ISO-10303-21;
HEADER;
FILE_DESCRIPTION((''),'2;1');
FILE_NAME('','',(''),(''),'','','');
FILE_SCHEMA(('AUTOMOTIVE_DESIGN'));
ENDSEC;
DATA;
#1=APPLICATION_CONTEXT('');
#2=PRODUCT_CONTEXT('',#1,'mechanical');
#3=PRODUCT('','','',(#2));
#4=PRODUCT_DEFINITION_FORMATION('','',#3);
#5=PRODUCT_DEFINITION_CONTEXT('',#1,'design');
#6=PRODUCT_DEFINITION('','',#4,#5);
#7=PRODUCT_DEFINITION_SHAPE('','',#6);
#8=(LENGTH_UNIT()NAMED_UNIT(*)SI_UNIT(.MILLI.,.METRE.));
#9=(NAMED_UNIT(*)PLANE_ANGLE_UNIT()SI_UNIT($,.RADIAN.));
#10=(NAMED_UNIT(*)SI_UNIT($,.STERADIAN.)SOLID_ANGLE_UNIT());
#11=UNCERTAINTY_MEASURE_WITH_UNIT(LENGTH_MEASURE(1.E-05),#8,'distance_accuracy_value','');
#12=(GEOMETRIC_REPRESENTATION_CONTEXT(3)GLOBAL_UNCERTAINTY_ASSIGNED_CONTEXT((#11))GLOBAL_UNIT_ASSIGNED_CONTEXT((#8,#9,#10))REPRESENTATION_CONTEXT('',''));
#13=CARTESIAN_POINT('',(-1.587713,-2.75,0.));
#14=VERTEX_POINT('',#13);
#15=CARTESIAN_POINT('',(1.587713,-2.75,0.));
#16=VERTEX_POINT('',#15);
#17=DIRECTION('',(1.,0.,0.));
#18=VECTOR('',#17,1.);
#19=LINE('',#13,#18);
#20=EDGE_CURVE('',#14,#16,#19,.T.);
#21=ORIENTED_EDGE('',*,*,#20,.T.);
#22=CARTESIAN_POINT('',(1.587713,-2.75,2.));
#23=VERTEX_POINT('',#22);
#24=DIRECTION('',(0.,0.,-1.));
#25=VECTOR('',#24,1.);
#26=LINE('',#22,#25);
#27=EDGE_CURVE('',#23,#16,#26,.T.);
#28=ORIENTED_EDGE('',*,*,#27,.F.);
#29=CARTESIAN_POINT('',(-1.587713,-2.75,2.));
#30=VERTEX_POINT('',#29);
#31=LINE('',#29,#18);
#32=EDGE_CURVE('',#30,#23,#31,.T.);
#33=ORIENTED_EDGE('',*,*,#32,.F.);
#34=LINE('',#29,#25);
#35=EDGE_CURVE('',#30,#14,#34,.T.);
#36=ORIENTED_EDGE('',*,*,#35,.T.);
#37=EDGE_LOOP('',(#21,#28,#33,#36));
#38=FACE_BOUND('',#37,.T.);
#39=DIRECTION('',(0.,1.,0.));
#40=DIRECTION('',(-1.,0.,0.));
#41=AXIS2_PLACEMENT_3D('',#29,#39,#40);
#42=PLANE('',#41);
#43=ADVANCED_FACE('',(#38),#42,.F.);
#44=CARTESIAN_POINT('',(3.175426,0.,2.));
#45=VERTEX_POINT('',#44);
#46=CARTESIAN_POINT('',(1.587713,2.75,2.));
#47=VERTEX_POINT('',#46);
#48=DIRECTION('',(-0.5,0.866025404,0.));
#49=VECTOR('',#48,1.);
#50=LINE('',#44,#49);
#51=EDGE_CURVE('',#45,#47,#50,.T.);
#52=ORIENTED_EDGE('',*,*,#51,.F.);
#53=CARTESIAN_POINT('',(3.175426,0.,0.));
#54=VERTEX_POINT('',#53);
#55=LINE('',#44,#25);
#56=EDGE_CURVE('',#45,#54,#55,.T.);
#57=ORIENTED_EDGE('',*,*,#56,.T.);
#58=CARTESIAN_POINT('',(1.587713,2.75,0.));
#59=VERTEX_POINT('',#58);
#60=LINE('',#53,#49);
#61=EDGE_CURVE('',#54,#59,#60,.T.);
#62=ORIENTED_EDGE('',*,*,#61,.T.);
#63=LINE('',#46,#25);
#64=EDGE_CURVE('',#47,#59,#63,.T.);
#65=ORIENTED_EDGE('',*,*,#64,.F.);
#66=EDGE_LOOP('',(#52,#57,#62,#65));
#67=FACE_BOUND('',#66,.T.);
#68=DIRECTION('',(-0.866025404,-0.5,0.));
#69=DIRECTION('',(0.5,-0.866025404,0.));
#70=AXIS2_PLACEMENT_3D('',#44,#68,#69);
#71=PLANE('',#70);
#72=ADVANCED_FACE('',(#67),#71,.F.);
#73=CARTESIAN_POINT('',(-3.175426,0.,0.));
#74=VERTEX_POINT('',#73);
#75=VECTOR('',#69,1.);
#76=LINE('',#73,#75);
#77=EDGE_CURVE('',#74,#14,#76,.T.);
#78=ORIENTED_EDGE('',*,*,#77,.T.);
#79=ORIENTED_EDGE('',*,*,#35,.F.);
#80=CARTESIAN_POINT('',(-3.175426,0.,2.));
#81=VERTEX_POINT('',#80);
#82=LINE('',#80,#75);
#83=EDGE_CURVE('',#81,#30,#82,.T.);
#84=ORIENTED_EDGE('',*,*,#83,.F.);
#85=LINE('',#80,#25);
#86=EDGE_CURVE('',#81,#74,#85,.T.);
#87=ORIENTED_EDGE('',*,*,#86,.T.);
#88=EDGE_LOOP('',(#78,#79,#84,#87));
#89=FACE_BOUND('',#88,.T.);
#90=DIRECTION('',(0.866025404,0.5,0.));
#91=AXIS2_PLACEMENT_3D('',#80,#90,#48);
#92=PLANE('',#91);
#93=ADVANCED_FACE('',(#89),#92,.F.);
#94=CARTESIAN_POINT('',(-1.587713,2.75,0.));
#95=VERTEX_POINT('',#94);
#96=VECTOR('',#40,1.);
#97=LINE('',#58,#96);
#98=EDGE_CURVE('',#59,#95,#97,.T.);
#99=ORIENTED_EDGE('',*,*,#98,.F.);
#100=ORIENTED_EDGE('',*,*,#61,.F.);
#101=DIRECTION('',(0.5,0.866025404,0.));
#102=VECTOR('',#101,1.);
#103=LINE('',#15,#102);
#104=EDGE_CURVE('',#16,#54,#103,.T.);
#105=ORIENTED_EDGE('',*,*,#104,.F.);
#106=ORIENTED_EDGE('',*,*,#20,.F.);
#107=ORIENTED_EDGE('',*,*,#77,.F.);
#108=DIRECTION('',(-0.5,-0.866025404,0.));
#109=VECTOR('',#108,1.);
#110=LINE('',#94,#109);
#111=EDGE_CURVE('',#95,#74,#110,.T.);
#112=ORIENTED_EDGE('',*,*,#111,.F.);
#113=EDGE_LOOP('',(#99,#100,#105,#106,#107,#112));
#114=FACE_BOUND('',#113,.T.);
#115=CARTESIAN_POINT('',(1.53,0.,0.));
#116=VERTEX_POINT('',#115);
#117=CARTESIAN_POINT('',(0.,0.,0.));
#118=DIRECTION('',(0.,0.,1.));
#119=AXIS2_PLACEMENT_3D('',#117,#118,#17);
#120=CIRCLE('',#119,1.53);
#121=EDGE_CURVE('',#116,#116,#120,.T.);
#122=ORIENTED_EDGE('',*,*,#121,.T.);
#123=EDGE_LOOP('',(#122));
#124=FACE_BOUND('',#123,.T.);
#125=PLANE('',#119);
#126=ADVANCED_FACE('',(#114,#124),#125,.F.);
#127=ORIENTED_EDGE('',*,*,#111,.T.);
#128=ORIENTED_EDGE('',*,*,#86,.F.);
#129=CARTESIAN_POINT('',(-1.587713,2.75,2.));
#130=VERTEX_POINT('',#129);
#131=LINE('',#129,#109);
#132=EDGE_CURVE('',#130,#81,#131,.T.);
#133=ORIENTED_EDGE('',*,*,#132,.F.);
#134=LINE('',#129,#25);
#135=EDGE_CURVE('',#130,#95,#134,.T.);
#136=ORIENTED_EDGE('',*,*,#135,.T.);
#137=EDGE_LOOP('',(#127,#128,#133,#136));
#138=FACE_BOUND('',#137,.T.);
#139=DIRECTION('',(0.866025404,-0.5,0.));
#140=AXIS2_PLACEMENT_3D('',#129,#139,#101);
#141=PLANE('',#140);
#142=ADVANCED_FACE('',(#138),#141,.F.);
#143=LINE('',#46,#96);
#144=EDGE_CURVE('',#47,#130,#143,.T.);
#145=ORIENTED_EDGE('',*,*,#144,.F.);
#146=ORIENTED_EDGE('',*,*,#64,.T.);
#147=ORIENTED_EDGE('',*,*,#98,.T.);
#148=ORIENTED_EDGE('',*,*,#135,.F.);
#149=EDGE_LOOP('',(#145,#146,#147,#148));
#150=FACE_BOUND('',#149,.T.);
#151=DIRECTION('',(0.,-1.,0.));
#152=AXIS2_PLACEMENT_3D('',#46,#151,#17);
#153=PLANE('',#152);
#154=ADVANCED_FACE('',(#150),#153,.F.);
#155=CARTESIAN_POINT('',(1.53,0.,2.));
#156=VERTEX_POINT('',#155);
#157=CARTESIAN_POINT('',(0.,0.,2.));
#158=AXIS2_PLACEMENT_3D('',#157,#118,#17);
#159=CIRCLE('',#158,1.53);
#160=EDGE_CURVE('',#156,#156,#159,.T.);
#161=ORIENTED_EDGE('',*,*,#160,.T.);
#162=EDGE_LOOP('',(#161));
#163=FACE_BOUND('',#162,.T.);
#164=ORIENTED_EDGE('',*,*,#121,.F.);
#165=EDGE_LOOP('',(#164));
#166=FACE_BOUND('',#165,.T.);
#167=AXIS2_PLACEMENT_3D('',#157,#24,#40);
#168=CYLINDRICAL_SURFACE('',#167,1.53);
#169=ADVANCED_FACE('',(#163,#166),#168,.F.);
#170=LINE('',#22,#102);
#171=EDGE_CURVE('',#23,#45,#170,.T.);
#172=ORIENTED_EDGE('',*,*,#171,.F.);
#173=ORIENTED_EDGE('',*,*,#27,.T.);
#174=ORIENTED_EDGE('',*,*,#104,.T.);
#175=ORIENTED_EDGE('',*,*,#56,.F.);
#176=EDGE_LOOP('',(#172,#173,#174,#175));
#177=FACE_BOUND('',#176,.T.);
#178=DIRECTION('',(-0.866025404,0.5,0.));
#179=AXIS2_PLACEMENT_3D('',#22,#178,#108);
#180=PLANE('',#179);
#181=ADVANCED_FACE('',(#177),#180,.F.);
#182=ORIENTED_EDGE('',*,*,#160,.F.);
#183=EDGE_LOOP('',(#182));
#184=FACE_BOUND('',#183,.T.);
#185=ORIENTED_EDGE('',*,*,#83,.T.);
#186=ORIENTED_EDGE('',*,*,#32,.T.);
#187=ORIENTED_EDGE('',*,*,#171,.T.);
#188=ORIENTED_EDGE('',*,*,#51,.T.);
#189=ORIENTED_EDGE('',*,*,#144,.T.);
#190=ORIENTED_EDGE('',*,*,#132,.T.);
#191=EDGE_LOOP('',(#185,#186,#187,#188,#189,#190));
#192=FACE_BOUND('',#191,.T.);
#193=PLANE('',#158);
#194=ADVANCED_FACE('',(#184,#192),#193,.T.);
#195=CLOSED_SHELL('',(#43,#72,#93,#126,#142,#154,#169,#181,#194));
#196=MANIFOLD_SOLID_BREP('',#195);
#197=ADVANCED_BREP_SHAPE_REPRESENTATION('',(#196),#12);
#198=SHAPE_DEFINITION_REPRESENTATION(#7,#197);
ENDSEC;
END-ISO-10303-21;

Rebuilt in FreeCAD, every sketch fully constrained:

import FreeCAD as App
import Part
import Sketcher

V = App.Vector
Q = App.Units.Quantity


def add_polygon(sketch, points):
    """Adds a closed chain of lines whose ends are joined by coincident constraints."""
    first, n = sketch.GeometryCount, len(points)
    for a, b in zip(points, points[1:] + points[:1]):
        sketch.addGeometry(Part.LineSegment(App.Vector(*a, 0), App.Vector(*b, 0)), False)
    for i in range(n):
        sketch.addConstraint(Sketcher.Constraint("Coincident", first + i, 2, first + (i + 1) % n, 1))

doc = App.newDocument("Part")
params = doc.addObject("Spreadsheet::Sheet", "Params")
for row, (alias, value) in enumerate([
    ("sketch1_diameter", "3.06 mm"),
    ("pad1_length", "2 mm"),
], start=1):
    params.set(f"A{row}", alias)
    params.set(f"B{row}", "=" + value)
    params.setAlias(f"B{row}", alias)

body = doc.addObject("PartDesign::Body", "Body")

sketch1 = body.newObject("Sketcher::SketchObject", "Sketch")
sketch1.AttachmentSupport = (doc.getObject("XY_Plane"), [""])
sketch1.MapMode = "FlatFace"
add_polygon(sketch1, [(3.2, 0), (1.6, 2.8), (-1.6, 2.8), (-3.2, 0), (-1.6, -2.8), (1.6, -2.8)])
sketch1.addGeometry(Part.Circle(V(0, 0, 0), V(0, 0, 1), 1.5), False)
sketch1.addConstraint([
    Sketcher.Constraint("Horizontal", 1),
    Sketcher.Constraint("Horizontal", 4),
    Sketcher.Constraint("Coincident", 6, 3, -1, 1),
    Sketcher.Constraint("Symmetric", 0, 2, 3, 2, -1, 1),
    Sketcher.Constraint("Symmetric", 2, 2, 5, 2, -1, 1),
    Sketcher.Constraint("PointOnObject", 2, 2, -1),
    Sketcher.Constraint("Parallel", 2, 5),
    Sketcher.Constraint("Vertical", 1, 2, 3, 2),
    Sketcher.Constraint("Diameter", 6, 3.06),
    Sketcher.Constraint("Angle", 0, Q("120 deg")),
    Sketcher.Constraint("DistanceY", 3, 2, 1, 2, 5.5),
    Sketcher.Constraint("DistanceX", 1, 2, 1, 1, 3.175426),
])
sketch1.setExpression("Constraints[14]", "Params.sketch1_diameter")
pad1 = body.newObject("PartDesign::Pad", "Pad")
pad1.Profile = sketch1
pad1.setExpression("Length", "Params.pad1_length")

doc.recompute()
